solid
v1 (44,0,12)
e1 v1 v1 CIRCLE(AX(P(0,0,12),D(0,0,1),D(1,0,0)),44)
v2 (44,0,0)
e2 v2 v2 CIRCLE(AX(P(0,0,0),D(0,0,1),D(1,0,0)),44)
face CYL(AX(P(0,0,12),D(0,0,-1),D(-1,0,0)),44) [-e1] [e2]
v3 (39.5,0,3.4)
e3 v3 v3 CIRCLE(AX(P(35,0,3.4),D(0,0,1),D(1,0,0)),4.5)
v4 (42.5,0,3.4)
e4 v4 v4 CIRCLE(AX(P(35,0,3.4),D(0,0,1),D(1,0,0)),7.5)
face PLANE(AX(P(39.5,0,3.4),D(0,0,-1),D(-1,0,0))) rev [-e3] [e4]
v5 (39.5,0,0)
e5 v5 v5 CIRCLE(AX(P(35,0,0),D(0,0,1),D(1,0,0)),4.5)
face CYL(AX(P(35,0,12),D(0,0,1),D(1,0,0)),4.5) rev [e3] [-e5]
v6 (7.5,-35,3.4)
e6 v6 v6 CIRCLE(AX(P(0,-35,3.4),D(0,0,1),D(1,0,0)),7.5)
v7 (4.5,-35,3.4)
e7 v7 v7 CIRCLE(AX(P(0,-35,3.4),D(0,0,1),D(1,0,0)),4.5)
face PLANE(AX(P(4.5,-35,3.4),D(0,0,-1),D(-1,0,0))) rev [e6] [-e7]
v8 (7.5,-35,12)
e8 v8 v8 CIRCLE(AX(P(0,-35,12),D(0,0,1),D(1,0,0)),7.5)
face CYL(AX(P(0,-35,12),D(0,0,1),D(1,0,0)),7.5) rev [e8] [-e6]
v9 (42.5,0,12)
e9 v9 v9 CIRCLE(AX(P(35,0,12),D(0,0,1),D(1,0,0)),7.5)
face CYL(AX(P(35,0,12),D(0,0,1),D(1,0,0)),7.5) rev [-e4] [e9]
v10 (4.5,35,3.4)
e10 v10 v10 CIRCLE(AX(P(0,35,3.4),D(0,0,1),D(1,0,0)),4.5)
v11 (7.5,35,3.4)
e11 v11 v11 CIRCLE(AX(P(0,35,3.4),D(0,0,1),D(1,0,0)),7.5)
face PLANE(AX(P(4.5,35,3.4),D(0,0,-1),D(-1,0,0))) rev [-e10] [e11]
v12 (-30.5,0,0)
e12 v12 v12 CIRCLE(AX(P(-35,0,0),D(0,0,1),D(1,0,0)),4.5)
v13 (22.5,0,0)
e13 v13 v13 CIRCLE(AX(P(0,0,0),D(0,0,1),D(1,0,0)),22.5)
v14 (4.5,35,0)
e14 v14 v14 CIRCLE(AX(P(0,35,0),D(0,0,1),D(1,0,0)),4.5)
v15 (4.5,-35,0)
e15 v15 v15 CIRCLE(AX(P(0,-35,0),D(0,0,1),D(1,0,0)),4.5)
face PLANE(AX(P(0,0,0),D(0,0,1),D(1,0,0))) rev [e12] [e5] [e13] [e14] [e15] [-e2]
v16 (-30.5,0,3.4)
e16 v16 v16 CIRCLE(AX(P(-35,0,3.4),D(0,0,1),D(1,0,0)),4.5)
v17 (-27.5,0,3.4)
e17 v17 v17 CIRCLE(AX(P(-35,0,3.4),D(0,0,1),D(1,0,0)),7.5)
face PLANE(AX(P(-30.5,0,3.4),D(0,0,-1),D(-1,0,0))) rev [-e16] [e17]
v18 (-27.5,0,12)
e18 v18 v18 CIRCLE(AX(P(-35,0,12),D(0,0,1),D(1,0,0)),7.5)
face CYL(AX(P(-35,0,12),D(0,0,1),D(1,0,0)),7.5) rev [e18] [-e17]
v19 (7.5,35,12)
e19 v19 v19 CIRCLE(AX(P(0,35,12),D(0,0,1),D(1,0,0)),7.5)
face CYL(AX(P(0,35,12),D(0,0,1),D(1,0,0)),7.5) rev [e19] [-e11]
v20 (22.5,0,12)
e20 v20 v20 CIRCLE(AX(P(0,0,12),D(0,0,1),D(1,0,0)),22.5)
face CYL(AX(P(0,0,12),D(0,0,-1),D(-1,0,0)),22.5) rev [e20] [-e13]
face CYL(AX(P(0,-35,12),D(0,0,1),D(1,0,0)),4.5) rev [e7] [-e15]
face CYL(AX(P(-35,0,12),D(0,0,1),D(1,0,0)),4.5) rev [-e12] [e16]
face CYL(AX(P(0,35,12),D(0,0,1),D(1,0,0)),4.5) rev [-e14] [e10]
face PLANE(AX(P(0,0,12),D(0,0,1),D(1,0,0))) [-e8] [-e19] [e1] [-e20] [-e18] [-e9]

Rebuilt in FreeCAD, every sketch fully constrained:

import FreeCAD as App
import Part
import Sketcher
from FreeCAD import Vector

doc = App.newDocument("Part")
body = doc.addObject("PartDesign::Body", "Body")

# Sketch on XY plane
sketch1 = body.newObject("Sketcher::SketchObject", "Sketch")
sketch1.AttachmentSupport = (doc.getObject("XY_Plane"), [""])
sketch1.MapMode = "FlatFace"
sketch1.addGeometry(Part.Circle(Vector(0, 0, 0), Vector(0, 0, 1), 44), False)
sketch1.addGeometry(Part.Circle(Vector(0, 0, 0), Vector(0, 0, 1), 22), False)
sketch1.addConstraint(Sketcher.Constraint("Coincident", 0, 3, -1, 1))
sketch1.addConstraint(Sketcher.Constraint("Coincident", 1, 3, -1, 1))
sketch1.addConstraint(Sketcher.Constraint("Diameter", 0, 88.0))
sketch1.addConstraint(Sketcher.Constraint("Diameter", 1, 45.0))
pad1 = body.newObject("PartDesign::Pad", "Pad")
pad1.Profile = sketch1
pad1.Length = 12

# Sketch on XY plane
sketch2 = body.newObject("Sketcher::SketchObject", "Sketch001")
sketch2.AttachmentSupport = (doc.getObject("XY_Plane"), [""])
sketch2.MapMode = "FlatFace"
sketch2.AttachmentOffset = App.Placement(Vector(0, 0, 12), App.Rotation())
sketch2.addGeometry(Part.Circle(Vector(0, -35, 0), Vector(0, 0, 1), 4.5), False)
sketch2.addGeometry(Part.Circle(Vector(-35, 0, 0), Vector(0, 0, 1), 4.5), False)
sketch2.addGeometry(Part.Circle(Vector(0, 35, 0), Vector(0, 0, 1), 4.5), False)
sketch2.addGeometry(Part.Circle(Vector(35, 0, 0), Vector(0, 0, 1), 4.5), False)
sketch2.addConstraint(Sketcher.Constraint("Equal", 0, 1))
sketch2.addConstraint(Sketcher.Constraint("Equal", 1, 2))
sketch2.addConstraint(Sketcher.Constraint("Equal", 2, 3))
sketch2.addConstraint(Sketcher.Constraint("Symmetric", 0, 3, 2, 3, -1, 1))
sketch2.addConstraint(Sketcher.Constraint("Symmetric", 1, 3, 3, 3, -1, 1))
sketch2.addConstraint(Sketcher.Constraint("PointOnObject", 0, 3, -2))
sketch2.addConstraint(Sketcher.Constraint("PointOnObject", 1, 3, -1))
sketch2.addConstraint(Sketcher.Constraint("Diameter", 0, 9.0))
sketch2.addConstraint(Sketcher.Constraint("DistanceY", 0, 3, -1, 1, 35.0))
sketch2.addConstraint(Sketcher.Constraint("DistanceX", 1, 3, -1, 1, 35.0))
doc.recompute()
hole = body.newObject("PartDesign::Hole", "Hole")
hole.Profile = sketch2
hole.ThreadType = "None"
hole.Diameter = 9
hole.DepthType = "Dimension"
hole.Depth = 22.25
hole.DrillPoint = "Angled"
hole.DrillPointAngle = 118
hole.HoleCutType = "Counterbore"
hole.HoleCutDiameter = 15
hole.HoleCutDepth = 8.6

doc.recompute()
